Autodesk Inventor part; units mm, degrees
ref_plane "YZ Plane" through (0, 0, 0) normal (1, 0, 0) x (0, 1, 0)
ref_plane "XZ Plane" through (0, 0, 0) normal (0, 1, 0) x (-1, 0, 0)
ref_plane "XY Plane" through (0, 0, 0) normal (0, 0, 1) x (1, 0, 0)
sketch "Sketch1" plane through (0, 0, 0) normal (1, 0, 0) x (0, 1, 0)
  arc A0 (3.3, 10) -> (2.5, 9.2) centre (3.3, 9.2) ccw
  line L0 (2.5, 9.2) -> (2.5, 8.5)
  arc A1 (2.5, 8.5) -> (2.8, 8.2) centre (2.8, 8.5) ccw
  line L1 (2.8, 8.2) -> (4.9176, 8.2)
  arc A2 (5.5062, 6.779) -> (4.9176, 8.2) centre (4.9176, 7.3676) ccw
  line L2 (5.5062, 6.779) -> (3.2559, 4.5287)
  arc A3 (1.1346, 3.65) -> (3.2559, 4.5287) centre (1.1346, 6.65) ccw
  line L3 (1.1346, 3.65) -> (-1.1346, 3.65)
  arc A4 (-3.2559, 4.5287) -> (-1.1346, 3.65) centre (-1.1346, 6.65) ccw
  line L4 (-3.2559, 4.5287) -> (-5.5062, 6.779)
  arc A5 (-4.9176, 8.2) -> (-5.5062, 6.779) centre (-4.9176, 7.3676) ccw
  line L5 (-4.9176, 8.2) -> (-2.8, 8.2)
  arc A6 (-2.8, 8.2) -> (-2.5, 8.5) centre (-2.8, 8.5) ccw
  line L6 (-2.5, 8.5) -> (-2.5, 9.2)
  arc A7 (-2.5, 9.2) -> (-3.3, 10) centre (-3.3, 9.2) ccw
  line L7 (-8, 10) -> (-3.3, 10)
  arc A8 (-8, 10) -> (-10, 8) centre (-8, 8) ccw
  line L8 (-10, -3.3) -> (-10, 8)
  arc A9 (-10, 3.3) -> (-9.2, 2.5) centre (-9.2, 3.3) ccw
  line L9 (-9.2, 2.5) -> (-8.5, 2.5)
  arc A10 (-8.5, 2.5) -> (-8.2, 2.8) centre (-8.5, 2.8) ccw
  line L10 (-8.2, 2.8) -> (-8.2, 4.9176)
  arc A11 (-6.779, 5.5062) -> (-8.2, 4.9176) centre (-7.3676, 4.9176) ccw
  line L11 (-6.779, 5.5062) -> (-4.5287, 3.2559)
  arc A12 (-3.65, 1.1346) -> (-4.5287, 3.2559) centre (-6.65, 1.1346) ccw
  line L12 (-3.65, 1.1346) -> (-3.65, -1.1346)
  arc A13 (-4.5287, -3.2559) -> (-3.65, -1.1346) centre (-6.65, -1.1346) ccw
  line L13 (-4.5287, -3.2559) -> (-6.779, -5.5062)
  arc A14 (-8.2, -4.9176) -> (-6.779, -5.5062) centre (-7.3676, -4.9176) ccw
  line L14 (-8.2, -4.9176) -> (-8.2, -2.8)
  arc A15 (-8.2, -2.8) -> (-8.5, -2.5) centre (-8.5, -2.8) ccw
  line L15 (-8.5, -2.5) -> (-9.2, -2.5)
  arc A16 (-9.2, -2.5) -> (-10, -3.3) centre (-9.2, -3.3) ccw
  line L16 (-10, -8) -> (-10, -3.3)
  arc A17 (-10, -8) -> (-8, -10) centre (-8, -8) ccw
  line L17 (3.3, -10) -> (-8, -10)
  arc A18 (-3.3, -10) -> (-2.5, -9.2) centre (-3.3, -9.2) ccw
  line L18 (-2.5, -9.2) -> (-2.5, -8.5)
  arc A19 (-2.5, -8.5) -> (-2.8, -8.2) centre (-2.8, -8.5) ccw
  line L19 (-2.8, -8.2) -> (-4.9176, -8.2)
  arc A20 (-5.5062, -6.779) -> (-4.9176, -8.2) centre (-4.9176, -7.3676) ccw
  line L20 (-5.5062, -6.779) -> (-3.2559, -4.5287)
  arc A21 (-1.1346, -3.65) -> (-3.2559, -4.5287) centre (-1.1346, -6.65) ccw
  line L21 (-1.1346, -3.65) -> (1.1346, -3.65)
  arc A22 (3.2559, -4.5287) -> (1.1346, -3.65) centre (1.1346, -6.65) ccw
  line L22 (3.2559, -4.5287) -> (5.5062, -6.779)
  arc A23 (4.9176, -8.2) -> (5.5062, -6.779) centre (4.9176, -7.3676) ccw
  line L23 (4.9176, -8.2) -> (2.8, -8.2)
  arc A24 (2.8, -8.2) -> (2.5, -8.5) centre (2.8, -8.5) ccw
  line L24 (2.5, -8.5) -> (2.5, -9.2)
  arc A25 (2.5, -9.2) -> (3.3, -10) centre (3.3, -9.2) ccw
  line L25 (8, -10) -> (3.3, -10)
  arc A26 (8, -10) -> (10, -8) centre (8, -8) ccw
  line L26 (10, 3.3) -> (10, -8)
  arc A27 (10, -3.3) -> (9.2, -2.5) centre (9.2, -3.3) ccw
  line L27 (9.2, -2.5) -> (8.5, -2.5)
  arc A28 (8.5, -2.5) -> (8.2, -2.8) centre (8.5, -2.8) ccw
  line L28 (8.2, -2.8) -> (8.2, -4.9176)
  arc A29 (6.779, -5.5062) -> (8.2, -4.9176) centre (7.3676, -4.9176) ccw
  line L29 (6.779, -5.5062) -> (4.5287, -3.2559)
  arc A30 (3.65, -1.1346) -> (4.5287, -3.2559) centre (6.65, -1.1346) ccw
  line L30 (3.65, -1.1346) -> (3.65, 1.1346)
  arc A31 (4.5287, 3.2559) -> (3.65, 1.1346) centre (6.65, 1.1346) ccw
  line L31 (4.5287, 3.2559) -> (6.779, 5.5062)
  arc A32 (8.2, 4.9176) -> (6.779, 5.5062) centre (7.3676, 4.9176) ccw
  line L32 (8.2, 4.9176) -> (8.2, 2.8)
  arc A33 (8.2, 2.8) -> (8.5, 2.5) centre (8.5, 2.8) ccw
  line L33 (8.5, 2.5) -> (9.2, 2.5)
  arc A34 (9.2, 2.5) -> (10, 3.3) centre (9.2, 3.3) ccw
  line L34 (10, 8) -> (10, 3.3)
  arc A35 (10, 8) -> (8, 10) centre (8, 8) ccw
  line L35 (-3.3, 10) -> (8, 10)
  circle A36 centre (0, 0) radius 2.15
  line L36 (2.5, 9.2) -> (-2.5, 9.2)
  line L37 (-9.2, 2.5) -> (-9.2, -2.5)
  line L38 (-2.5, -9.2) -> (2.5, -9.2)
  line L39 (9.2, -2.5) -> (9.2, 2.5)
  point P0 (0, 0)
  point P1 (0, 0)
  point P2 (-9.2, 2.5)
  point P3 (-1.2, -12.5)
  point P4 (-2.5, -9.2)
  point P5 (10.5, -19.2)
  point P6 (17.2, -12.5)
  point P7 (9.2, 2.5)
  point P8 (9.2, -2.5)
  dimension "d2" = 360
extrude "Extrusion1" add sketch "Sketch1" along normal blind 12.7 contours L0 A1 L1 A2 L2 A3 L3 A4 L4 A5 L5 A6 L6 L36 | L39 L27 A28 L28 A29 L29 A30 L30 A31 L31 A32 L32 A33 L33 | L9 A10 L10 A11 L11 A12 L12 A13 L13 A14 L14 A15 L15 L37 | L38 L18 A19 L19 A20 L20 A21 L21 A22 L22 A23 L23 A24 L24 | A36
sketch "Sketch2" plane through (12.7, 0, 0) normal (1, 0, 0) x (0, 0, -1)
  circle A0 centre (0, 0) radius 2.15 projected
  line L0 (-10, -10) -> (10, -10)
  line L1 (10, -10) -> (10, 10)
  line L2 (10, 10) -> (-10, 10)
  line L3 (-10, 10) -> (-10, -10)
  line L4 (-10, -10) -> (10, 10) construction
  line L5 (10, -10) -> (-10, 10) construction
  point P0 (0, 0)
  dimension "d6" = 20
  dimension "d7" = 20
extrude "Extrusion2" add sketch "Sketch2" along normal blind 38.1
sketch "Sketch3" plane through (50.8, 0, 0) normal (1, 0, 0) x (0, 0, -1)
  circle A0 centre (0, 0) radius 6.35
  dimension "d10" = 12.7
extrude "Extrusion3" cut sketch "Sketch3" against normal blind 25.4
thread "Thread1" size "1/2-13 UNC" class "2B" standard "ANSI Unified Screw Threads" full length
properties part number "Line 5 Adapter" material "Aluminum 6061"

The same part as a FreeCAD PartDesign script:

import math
import FreeCAD as App
import Part
import Sketcher
from FreeCAD import Vector


def add_polygon(sketch, points):
    """Adds a closed chain of lines whose ends are joined by coincident constraints."""
    first, n = sketch.GeometryCount, len(points)
    for a, b in zip(points, points[1:] + points[:1]):
        sketch.addGeometry(Part.LineSegment(App.Vector(*a, 0), App.Vector(*b, 0)), False)
    for i in range(n):
        sketch.addConstraint(Sketcher.Constraint("Coincident", first + i, 2, first + (i + 1) % n, 1))

doc = App.newDocument("Part")
params = doc.addObject("Spreadsheet::Sheet", "Params")
for row, (alias, value) in enumerate([
    ("sketch1_radius", "3 mm"),
    ("sketch1_diameter", "4.3 mm"),
    ("sketch1_radius2", "0.3 mm"),
    ("sketch1_width", "5 mm"),
    ("sketch1_width2", "0.7 mm"),
    ("pad1_length", "12.7 mm"),
    ("sketch2_width", "20 mm"),
    ("sketch2_diameter", "4.3 mm"),
    ("pad2_length", "38.1 mm"),
    ("sketch3_diameter", "12.7 mm"),
    ("pocket1_length", "25.4 mm"),
], start=1):
    params.set(f"A{row}", alias)
    params.set(f"B{row}", "=" + value)
    params.setAlias(f"B{row}", alias)

body = doc.addObject("PartDesign::Body", "Body")
body.AllowCompound = True

# Sketch on YZ plane
sketch1 = doc.addObject("Sketcher::SketchObject", "Sketch")
body.addObject(sketch1)
sketch1.AttachmentSupport = (doc.YZ_Plane, [""])
sketch1.MapMode = "FlatFace"
sketch1.addGeometry(Part.LineSegment(Vector(2.5, 8.5, 0), Vector(2.5, 9.2, 0)), False)
sketch1.addGeometry(Part.LineSegment(Vector(2.5, 9.2, 0), Vector(-2.5, 9.2, 0)), False)
sketch1.addGeometry(Part.LineSegment(Vector(-2.5, 9.2, 0), Vector(-2.5, 8.5, 0)), False)
sketch1.addGeometry(Part.ArcOfCircle(Part.Circle(Vector(-2.8, 8.5, 0), Vector(0, 0, 1), 0.3), math.radians(-90), math.radians(0)), False)
sketch1.addGeometry(Part.LineSegment(Vector(-2.8, 8.2, 0), Vector(-4.92, 8.2, 0)), False)
sketch1.addGeometry(Part.ArcOfCircle(Part.Circle(Vector(-4.92, 7.37, 0), Vector(0, 0, 1), 0.83), math.radians(90), math.radians(225)), False)
sketch1.addGeometry(Part.LineSegment(Vector(-5.51, 6.78, 0), Vector(-3.26, 4.53, 0)), False)
sketch1.addGeometry(Part.ArcOfCircle(Part.Circle(Vector(-1.13, 6.65, 0), Vector(0, 0, 1), 3), math.radians(-135), math.radians(-90)), False)
sketch1.addGeometry(Part.LineSegment(Vector(-1.13, 3.65, 0), Vector(1.13, 3.65, 0)), False)
sketch1.addGeometry(Part.ArcOfCircle(Part.Circle(Vector(1.13, 6.65, 0), Vector(0, 0, 1), 3), math.radians(-90), math.radians(-45)), False)
sketch1.addGeometry(Part.LineSegment(Vector(3.26, 4.53, 0), Vector(5.51, 6.78, 0)), False)
sketch1.addGeometry(Part.ArcOfCircle(Part.Circle(Vector(4.92, 7.37, 0), Vector(0, 0, 1), 0.83), math.radians(-45), math.radians(90)), False)
sketch1.addGeometry(Part.LineSegment(Vector(4.92, 8.2, 0), Vector(2.8, 8.2, 0)), False)
sketch1.addGeometry(Part.ArcOfCircle(Part.Circle(Vector(2.8, 8.5, 0), Vector(0, 0, 1), 0.3), math.radians(180), math.radians(270)), False)
sketch1.addGeometry(Part.LineSegment(Vector(9.2, -2.5, 0), Vector(9.2, 2.5, 0)), False)
sketch1.addGeometry(Part.LineSegment(Vector(9.2, 2.5, 0), Vector(8.5, 2.5, 0)), False)
sketch1.addGeometry(Part.ArcOfCircle(Part.Circle(Vector(8.5, 2.8, 0), Vector(0, 0, 1), 0.3), math.radians(180), math.radians(270)), False)
sketch1.addGeometry(Part.LineSegment(Vector(8.2, 2.8, 0), Vector(8.2, 4.92, 0)), False)
sketch1.addGeometry(Part.ArcOfCircle(Part.Circle(Vector(7.37, 4.92, 0), Vector(0, 0, 1), 0.83), math.radians(0), math.radians(135)), False)
sketch1.addGeometry(Part.LineSegment(Vector(6.78, 5.51, 0), Vector(4.53, 3.26, 0)), False)
sketch1.addGeometry(Part.ArcOfCircle(Part.Circle(Vector(6.65, 1.13, 0), Vector(0, 0, 1), 3), math.radians(135), math.radians(180)), False)
sketch1.addGeometry(Part.LineSegment(Vector(3.65, 1.13, 0), Vector(3.65, -1.13, 0)), False)
sketch1.addGeometry(Part.ArcOfCircle(Part.Circle(Vector(6.65, -1.13, 0), Vector(0, 0, 1), 3), math.radians(180), math.radians(225)), False)
sketch1.addGeometry(Part.LineSegment(Vector(4.53, -3.26, 0), Vector(6.78, -5.51, 0)), False)
sketch1.addGeometry(Part.ArcOfCircle(Part.Circle(Vector(7.37, -4.92, 0), Vector(0, 0, 1), 0.83), math.radians(-135), math.radians(0)), False)
sketch1.addGeometry(Part.LineSegment(Vector(8.2, -4.92, 0), Vector(8.2, -2.8, 0)), False)
sketch1.addGeometry(Part.ArcOfCircle(Part.Circle(Vector(8.5, -2.8, 0), Vector(0, 0, 1), 0.3), math.radians(90), math.radians(180)), False)
sketch1.addGeometry(Part.LineSegment(Vector(8.5, -2.5, 0), Vector(9.2, -2.5, 0)), False)
sketch1.addGeometry(Part.LineSegment(Vector(-8.5, 2.5, 0), Vector(-9.2, 2.5, 0)), False)
sketch1.addGeometry(Part.LineSegment(Vector(-9.2, 2.5, 0), Vector(-9.2, -2.5, 0)), False)
sketch1.addGeometry(Part.LineSegment(Vector(-9.2, -2.5, 0), Vector(-8.5, -2.5, 0)), False)
sketch1.addGeometry(Part.ArcOfCircle(Part.Circle(Vector(-8.5, -2.8, 0), Vector(0, 0, 1), 0.3), math.radians(0), math.radians(90)), False)
sketch1.addGeometry(Part.LineSegment(Vector(-8.2, -2.8, 0), Vector(-8.2, -4.92, 0)), False)
sketch1.addGeometry(Part.ArcOfCircle(Part.Circle(Vector(-7.37, -4.92, 0), Vector(0, 0, 1), 0.83), math.radians(180), math.radians(315)), False)
sketch1.addGeometry(Part.LineSegment(Vector(-6.78, -5.51, 0), Vector(-4.53, -3.26, 0)), False)
sketch1.addGeometry(Part.ArcOfCircle(Part.Circle(Vector(-6.65, -1.13, 0), Vector(0, 0, 1), 3), math.radians(-45), math.radians(0)), False)
sketch1.addGeometry(Part.LineSegment(Vector(-3.65, -1.13, 0), Vector(-3.65, 1.13, 0)), False)
sketch1.addGeometry(Part.ArcOfCircle(Part.Circle(Vector(-6.65, 1.13, 0), Vector(0, 0, 1), 3), math.radians(0), math.radians(45)), False)
sketch1.addGeometry(Part.LineSegment(Vector(-4.53, 3.26, 0), Vector(-6.78, 5.51, 0)), False)
sketch1.addGeometry(Part.ArcOfCircle(Part.Circle(Vector(-7.37, 4.92, 0), Vector(0, 0, 1), 0.83), math.radians(45), math.radians(180)), False)
sketch1.addGeometry(Part.LineSegment(Vector(-8.2, 4.92, 0), Vector(-8.2, 2.8, 0)), False)
sketch1.addGeometry(Part.ArcOfCircle(Part.Circle(Vector(-8.5, 2.8, 0), Vector(0, 0, 1), 0.3), math.radians(-90), math.radians(0)), False)
sketch1.addGeometry(Part.LineSegment(Vector(-2.5, -9.2, 0), Vector(2.5, -9.2, 0)), False)
sketch1.addGeometry(Part.LineSegment(Vector(2.5, -9.2, 0), Vector(2.5, -8.5, 0)), False)
sketch1.addGeometry(Part.ArcOfCircle(Part.Circle(Vector(2.8, -8.5, 0), Vector(0, 0, 1), 0.3), math.radians(90), math.radians(180)), False)
sketch1.addGeometry(Part.LineSegment(Vector(2.8, -8.2, 0), Vector(4.92, -8.2, 0)), False)
sketch1.addGeometry(Part.ArcOfCircle(Part.Circle(Vector(4.92, -7.37, 0), Vector(0, 0, 1), 0.83), math.radians(-90), math.radians(45)), False)
sketch1.addGeometry(Part.LineSegment(Vector(5.51, -6.78, 0), Vector(3.26, -4.53, 0)), False)
sketch1.addGeometry(Part.ArcOfCircle(Part.Circle(Vector(1.13, -6.65, 0), Vector(0, 0, 1), 3), math.radians(45), math.radians(90)), False)
sketch1.addGeometry(Part.LineSegment(Vector(1.13, -3.65, 0), Vector(-1.13, -3.65, 0)), False)
sketch1.addGeometry(Part.ArcOfCircle(Part.Circle(Vector(-1.13, -6.65, 0), Vector(0, 0, 1), 3), math.radians(90), math.radians(135)), False)
sketch1.addGeometry(Part.LineSegment(Vector(-3.26, -4.53, 0), Vector(-5.51, -6.78, 0)), False)
sketch1.addGeometry(Part.ArcOfCircle(Part.Circle(Vector(-4.92, -7.37, 0), Vector(0, 0, 1), 0.83), math.radians(135), math.radians(270)), False)
sketch1.addGeometry(Part.LineSegment(Vector(-4.92, -8.2, 0), Vector(-2.8, -8.2, 0)), False)
sketch1.addGeometry(Part.ArcOfCircle(Part.Circle(Vector(-2.8, -8.5, 0), Vector(0, 0, 1), 0.3), math.radians(0), math.radians(90)), False)
sketch1.addGeometry(Part.LineSegment(Vector(-2.5, -8.5, 0), Vector(-2.5, -9.2, 0)), False)
sketch1.addGeometry(Part.Circle(Vector(0, 0, 0), Vector(0, 0, 1), 2.15), False)
sketch1.addConstraint(Sketcher.Constraint("Coincident", 0, 2, 1, 1))
sketch1.addConstraint(Sketcher.Constraint("Coincident", 1, 2, 2, 1))
sketch1.addConstraint(Sketcher.Constraint("Tangent", 2, 2, 3, 2))
sketch1.addConstraint(Sketcher.Constraint("Tangent", 3, 1, 4, 1))
sketch1.addConstraint(Sketcher.Constraint("Tangent", 4, 2, 5, 1))
sketch1.addConstraint(Sketcher.Constraint("Tangent", 5, 2, 6, 1))
sketch1.addConstraint(Sketcher.Constraint("Tangent", 6, 2, 7, 1))
sketch1.addConstraint(Sketcher.Constraint("Tangent", 7, 2, 8, 1))
sketch1.addConstraint(Sketcher.Constraint("Tangent", 8, 2, 9, 1))
sketch1.addConstraint(Sketcher.Constraint("Tangent", 9, 2, 10, 1))
sketch1.addConstraint(Sketcher.Constraint("Tangent", 10, 2, 11, 1))
sketch1.addConstraint(Sketcher.Constraint("Tangent", 11, 2, 12, 1))
sketch1.addConstraint(Sketcher.Constraint("Tangent", 12, 2, 13, 2))
sketch1.addConstraint(Sketcher.Constraint("Tangent", 13, 1, 0, 1))
sketch1.addConstraint(Sketcher.Constraint("Coincident", 14, 2, 15, 1))
sketch1.addConstraint(Sketcher.Constraint("Tangent", 15, 2, 16, 2))
sketch1.addConstraint(Sketcher.Constraint("Tangent", 16, 1, 17, 1))
sketch1.addConstraint(Sketcher.Constraint("Tangent", 17, 2, 18, 1))
sketch1.addConstraint(Sketcher.Constraint("Tangent", 18, 2, 19, 1))
sketch1.addConstraint(Sketcher.Constraint("Tangent", 19, 2, 20, 1))
sketch1.addConstraint(Sketcher.Constraint("Tangent", 20, 2, 21, 1))
sketch1.addConstraint(Sketcher.Constraint("Tangent", 21, 2, 22, 1))
sketch1.addConstraint(Sketcher.Constraint("Tangent", 22, 2, 23, 1))
sketch1.addConstraint(Sketcher.Constraint("Tangent", 23, 2, 24, 1))
sketch1.addConstraint(Sketcher.Constraint("Tangent", 24, 2, 25, 1))
sketch1.addConstraint(Sketcher.Constraint("Tangent", 25, 2, 26, 2))
sketch1.addConstraint(Sketcher.Constraint("Tangent", 26, 1, 27, 1))
sketch1.addConstraint(Sketcher.Constraint("Coincident", 27, 2, 14, 1))
sketch1.addConstraint(Sketcher.Constraint("Coincident", 28, 2, 29, 1))
sketch1.addConstraint(Sketcher.Constraint("Coincident", 29, 2, 30, 1))
sketch1.addConstraint(Sketcher.Constraint("Tangent", 30, 2, 31, 2))
sketch1.addConstraint(Sketcher.Constraint("Tangent", 31, 1, 32, 1))
sketch1.addConstraint(Sketcher.Constraint("Tangent", 32, 2, 33, 1))
sketch1.addConstraint(Sketcher.Constraint("Tangent", 33, 2, 34, 1))
sketch1.addConstraint(Sketcher.Constraint("Tangent", 34, 2, 35, 1))
sketch1.addConstraint(Sketcher.Constraint("Tangent", 35, 2, 36, 1))
sketch1.addConstraint(Sketcher.Constraint("Tangent", 36, 2, 37, 1))
sketch1.addConstraint(Sketcher.Constraint("Tangent", 37, 2, 38, 1))
sketch1.addConstraint(Sketcher.Constraint("Tangent", 38, 2, 39, 1))
sketch1.addConstraint(Sketcher.Constraint("Tangent", 39, 2, 40, 1))
sketch1.addConstraint(Sketcher.Constraint("Tangent", 40, 2, 41, 2))
sketch1.addConstraint(Sketcher.Constraint("Tangent", 41, 1, 28, 1))
sketch1.addConstraint(Sketcher.Constraint("Coincident", 42, 2, 43, 1))
sketch1.addConstraint(Sketcher.Constraint("Tangent", 43, 2, 44, 2))
sketch1.addConstraint(Sketcher.Constraint("Tangent", 44, 1, 45, 1))
sketch1.addConstraint(Sketcher.Constraint("Tangent", 45, 2, 46, 1))
sketch1.addConstraint(Sketcher.Constraint("Tangent", 46, 2, 47, 1))
sketch1.addConstraint(Sketcher.Constraint("Tangent", 47, 2, 48, 1))
sketch1.addConstraint(Sketcher.Constraint("Tangent", 48, 2, 49, 1))
sketch1.addConstraint(Sketcher.Constraint("Tangent", 49, 2, 50, 1))
sketch1.addConstraint(Sketcher.Constraint("Tangent", 50, 2, 51, 1))
sketch1.addConstraint(Sketcher.Constraint("Tangent", 51, 2, 52, 1))
sketch1.addConstraint(Sketcher.Constraint("Tangent", 52, 2, 53, 1))
sketch1.addConstraint(Sketcher.Constraint("Tangent", 53, 2, 54, 2))
sketch1.addConstraint(Sketcher.Constraint("Tangent", 54, 1, 55, 1))
sketch1.addConstraint(Sketcher.Constraint("Coincident", 55, 2, 42, 1))
sketch1.addConstraint(Sketcher.Constraint("Vertical", 0))
sketch1.addConstraint(Sketcher.Constraint("Horizontal", 1))
sketch1.addConstraint(Sketcher.Constraint("Vertical", 2))
sketch1.addConstraint(Sketcher.Constraint("Horizontal", 4))
sketch1.addConstraint(Sketcher.Constraint("Horizontal", 8))
sketch1.addConstraint(Sketcher.Constraint("Horizontal", 12))
sketch1.addConstraint(Sketcher.Constraint("Vertical", 14))
sketch1.addConstraint(Sketcher.Constraint("Horizontal", 15))
sketch1.addConstraint(Sketcher.Constraint("Vertical", 17))
sketch1.addConstraint(Sketcher.Constraint("Vertical", 21))
sketch1.addConstraint(Sketcher.Constraint("Vertical", 25))
sketch1.addConstraint(Sketcher.Constraint("Horizontal", 27))
sketch1.addConstraint(Sketcher.Constraint("Horizontal", 28))
sketch1.addConstraint(Sketcher.Constraint("Vertical", 29))
sketch1.addConstraint(Sketcher.Constraint("Horizontal", 30))
sketch1.addConstraint(Sketcher.Constraint("Vertical", 32))
sketch1.addConstraint(Sketcher.Constraint("Vertical", 36))
sketch1.addConstraint(Sketcher.Constraint("Vertical", 40))
sketch1.addConstraint(Sketcher.Constraint("Horizontal", 42))
sketch1.addConstraint(Sketcher.Constraint("Vertical", 43))
sketch1.addConstraint(Sketcher.Constraint("Horizontal", 45))
sketch1.addConstraint(Sketcher.Constraint("Horizontal", 49))
sketch1.addConstraint(Sketcher.Constraint("Horizontal", 53))
sketch1.addConstraint(Sketcher.Constraint("Vertical", 55))
sketch1.addConstraint(Sketcher.Constraint("Coincident", 56, 3, -1, 1))
sketch1.addConstraint(Sketcher.Constraint("Equal", 7, 9))
sketch1.addConstraint(Sketcher.Constraint("Equal", 5, 11))
sketch1.addConstraint(Sketcher.Constraint("Equal", 3, 13))
sketch1.addConstraint(Sketcher.Constraint("Equal", 13, 16))
sketch1.addConstraint(Sketcher.Constraint("Equal", 11, 18))
sketch1.addConstraint(Sketcher.Constraint("Equal", 9, 20))
sketch1.addConstraint(Sketcher.Constraint("Equal", 20, 22))
sketch1.addConstraint(Sketcher.Constraint("Equal", 18, 24))
sketch1.addConstraint(Sketcher.Constraint("Equal", 16, 26))
sketch1.addConstraint(Sketcher.Constraint("Equal", 26, 31))
sketch1.addConstraint(Sketcher.Constraint("Equal", 24, 33))
sketch1.addConstraint(Sketcher.Constraint("Equal", 22, 35))
sketch1.addConstraint(Sketcher.Constraint("Equal", 35, 37))
sketch1.addConstraint(Sketcher.Constraint("Equal", 33, 39))
sketch1.addConstraint(Sketcher.Constraint("Equal", 31, 41))
sketch1.addConstraint(Sketcher.Constraint("Equal", 41, 44))
sketch1.addConstraint(Sketcher.Constraint("Equal", 39, 46))
sketch1.addConstraint(Sketcher.Constraint("Equal", 37, 48))
sketch1.addConstraint(Sketcher.Constraint("Equal", 48, 50))
sketch1.addConstraint(Sketcher.Constraint("Equal", 46, 52))
sketch1.addConstraint(Sketcher.Constraint("Equal", 44, 54))
sketch1.addConstraint(Sketcher.Constraint("Symmetric", 16, 3, 31, 3, -1, 1))
sketch1.addConstraint(Sketcher.Constraint("Symmetric", 20, 3, 35, 3, -1, 1))
sketch1.addConstraint(Sketcher.Constraint("Symmetric", 24, 3, 39, 3, -1, 1))
sketch1.addConstraint(Sketcher.Constraint("Symmetric", 3, 3, 44, 3, -1, 1))
sketch1.addConstraint(Sketcher.Constraint("Symmetric", 7, 3, 48, 3, -1, 1))
sketch1.addConstraint(Sketcher.Constraint("Symmetric", 11, 3, 52, 3, -1, 1))
sketch1.addConstraint(Sketcher.Constraint("Symmetric", 27, 2, 28, 2, -1, 1))
sketch1.addConstraint(Sketcher.Constraint("Symmetric", 0, 2, 55, 2, -1, 1))
sketch1.addConstraint(Sketcher.Constraint("Symmetric", 5, 3, 11, 3, -2))
sketch1.addConstraint(Sketcher.Constraint("Symmetric", 26, 3, 31, 3, -2))
sketch1.addConstraint(Sketcher.Constraint("Symmetric", 23, 2, 33, 2, -2))
sketch1.addConstraint(Sketcher.Constraint("Symmetric", 19, 2, 37, 2, -2))
sketch1.addConstraint(Sketcher.Constraint("Symmetric", 47, 2, 50, 2, -2))
sketch1.addConstraint(Sketcher.Constraint("Perpendicular", 6, 10))
sketch1.addConstraint(Sketcher.Constraint("Parallel", 10, 19))
sketch1.addConstraint(Sketcher.Constraint("Perpendicular", 19, 23))
sketch1.addConstraint(Sketcher.Constraint("Vertical", 13, 3, 44, 3))
sketch1.addConstraint(Sketcher.Constraint("Equal", 30, 0))
sketch1.addConstraint(Sketcher.Constraint("Equal", 42, 14))
sketch1.addConstraint(Sketcher.Constraint("Equal", 53, 17))
sketch1.addConstraint(Sketcher.Constraint("Equal", 49, 21))
sketch1.addConstraint(Sketcher.Constraint("Radius", 7, 3.0))
sketch1.addConstraint(Sketcher.Constraint("Diameter", 56, 4.3))
sketch1.addConstraint(Sketcher.Constraint("Radius", 3, 0.3))
sketch1.addConstraint(Sketcher.Constraint("DistanceX", 1, 2, 1, 1, 5.0))
sketch1.addConstraint(Sketcher.Constraint("DistanceX", 15, 2, 15, 1, 0.7))
sketch1.addConstraint(Sketcher.Constraint("DistanceY", -1, 1, 3, 3, 8.5))
sketch1.addConstraint(Sketcher.Constraint("DistanceX", -1, 1, 16, 3, 8.5))
sketch1.addConstraint(Sketcher.Constraint("Radius", 5, 0.8324))
sketch1.addConstraint(Sketcher.Constraint("DistanceY", -1, 1, 7, 3, 6.65))
sketch1.addConstraint(Sketcher.Constraint("DistanceX", 4, 2, 4, 1, 2.1176))
sketch1.setExpression("Constraints[123]", "Params.sketch1_radius")
sketch1.setExpression("Constraints[124]", "Params.sketch1_diameter")
sketch1.setExpression("Constraints[125]", "Params.sketch1_radius2")
sketch1.setExpression("Constraints[126]", "Params.sketch1_width")
sketch1.setExpression("Constraints[127]", "Params.sketch1_width2")
pad1 = doc.addObject("PartDesign::Pad", "Pad")
body.addObject(pad1)
pad1.Profile = sketch1
pad1.setExpression("Length", "Params.pad1_length")

# Sketch on YZ plane
sketch2 = doc.addObject("Sketcher::SketchObject", "Sketch001")
body.addObject(sketch2)
sketch2.AttachmentSupport = (doc.YZ_Plane, [""])
sketch2.MapMode = "FlatFace"
sketch2.AttachmentOffset = App.Placement(Vector(0, 0, 12.7), App.Rotation())
add_polygon(sketch2, [(10, 10), (-10, 10), (-10, -10), (10, -10)])  # lines 0-3
sketch2.addGeometry(Part.Circle(Vector(0, 0, 0), Vector(0, 0, 1), 2.1), False)  # 4
sketch2.addConstraint(Sketcher.Constraint("Horizontal", 0))
sketch2.addConstraint(Sketcher.Constraint("Vertical", 1))
sketch2.addConstraint(Sketcher.Constraint("Horizontal", 2))
sketch2.addConstraint(Sketcher.Constraint("Vertical", 3))
sketch2.addConstraint(Sketcher.Constraint("Coincident", 4, 3, -1, 1))
sketch2.addConstraint(Sketcher.Constraint("Symmetric", 0, 2, 2, 2, -1, 1))
sketch2.addConstraint(Sketcher.Constraint("Equal", 2, 1))
sketch2.addConstraint(Sketcher.Constraint("DistanceX", 0, 2, 0, 1, 20.0))
sketch2.addConstraint(Sketcher.Constraint("Diameter", 4, 4.3))
sketch2.setExpression("Constraints[11]", "Params.sketch2_width")
sketch2.setExpression("Constraints[12]", "Params.sketch2_diameter")
pad2 = doc.addObject("PartDesign::Pad", "Pad001")
body.addObject(pad2)
pad2.Profile = sketch2
pad2.setExpression("Length", "Params.pad2_length")

# Sketch on YZ plane
sketch3 = doc.addObject("Sketcher::SketchObject", "Sketch002")
body.addObject(sketch3)
sketch3.AttachmentSupport = (doc.YZ_Plane, [""])
sketch3.MapMode = "FlatFace"
sketch3.AttachmentOffset = App.Placement(Vector(0, 0, 50.8), App.Rotation())
sketch3.addGeometry(Part.Circle(Vector(0, 0, 0), Vector(0, 0, 1), 6), False)
sketch3.addConstraint(Sketcher.Constraint("Coincident", 0, 3, -1, 1))
sketch3.addConstraint(Sketcher.Constraint("Diameter", 0, 12.7))
sketch3.setExpression("Constraints[1]", "Params.sketch3_diameter")
pocket1 = doc.addObject("PartDesign::Pocket", "Pocket")
body.addObject(pocket1)
pocket1.Profile = sketch3
pocket1.setExpression("Length", "Params.pocket1_length")

doc.recompute()
